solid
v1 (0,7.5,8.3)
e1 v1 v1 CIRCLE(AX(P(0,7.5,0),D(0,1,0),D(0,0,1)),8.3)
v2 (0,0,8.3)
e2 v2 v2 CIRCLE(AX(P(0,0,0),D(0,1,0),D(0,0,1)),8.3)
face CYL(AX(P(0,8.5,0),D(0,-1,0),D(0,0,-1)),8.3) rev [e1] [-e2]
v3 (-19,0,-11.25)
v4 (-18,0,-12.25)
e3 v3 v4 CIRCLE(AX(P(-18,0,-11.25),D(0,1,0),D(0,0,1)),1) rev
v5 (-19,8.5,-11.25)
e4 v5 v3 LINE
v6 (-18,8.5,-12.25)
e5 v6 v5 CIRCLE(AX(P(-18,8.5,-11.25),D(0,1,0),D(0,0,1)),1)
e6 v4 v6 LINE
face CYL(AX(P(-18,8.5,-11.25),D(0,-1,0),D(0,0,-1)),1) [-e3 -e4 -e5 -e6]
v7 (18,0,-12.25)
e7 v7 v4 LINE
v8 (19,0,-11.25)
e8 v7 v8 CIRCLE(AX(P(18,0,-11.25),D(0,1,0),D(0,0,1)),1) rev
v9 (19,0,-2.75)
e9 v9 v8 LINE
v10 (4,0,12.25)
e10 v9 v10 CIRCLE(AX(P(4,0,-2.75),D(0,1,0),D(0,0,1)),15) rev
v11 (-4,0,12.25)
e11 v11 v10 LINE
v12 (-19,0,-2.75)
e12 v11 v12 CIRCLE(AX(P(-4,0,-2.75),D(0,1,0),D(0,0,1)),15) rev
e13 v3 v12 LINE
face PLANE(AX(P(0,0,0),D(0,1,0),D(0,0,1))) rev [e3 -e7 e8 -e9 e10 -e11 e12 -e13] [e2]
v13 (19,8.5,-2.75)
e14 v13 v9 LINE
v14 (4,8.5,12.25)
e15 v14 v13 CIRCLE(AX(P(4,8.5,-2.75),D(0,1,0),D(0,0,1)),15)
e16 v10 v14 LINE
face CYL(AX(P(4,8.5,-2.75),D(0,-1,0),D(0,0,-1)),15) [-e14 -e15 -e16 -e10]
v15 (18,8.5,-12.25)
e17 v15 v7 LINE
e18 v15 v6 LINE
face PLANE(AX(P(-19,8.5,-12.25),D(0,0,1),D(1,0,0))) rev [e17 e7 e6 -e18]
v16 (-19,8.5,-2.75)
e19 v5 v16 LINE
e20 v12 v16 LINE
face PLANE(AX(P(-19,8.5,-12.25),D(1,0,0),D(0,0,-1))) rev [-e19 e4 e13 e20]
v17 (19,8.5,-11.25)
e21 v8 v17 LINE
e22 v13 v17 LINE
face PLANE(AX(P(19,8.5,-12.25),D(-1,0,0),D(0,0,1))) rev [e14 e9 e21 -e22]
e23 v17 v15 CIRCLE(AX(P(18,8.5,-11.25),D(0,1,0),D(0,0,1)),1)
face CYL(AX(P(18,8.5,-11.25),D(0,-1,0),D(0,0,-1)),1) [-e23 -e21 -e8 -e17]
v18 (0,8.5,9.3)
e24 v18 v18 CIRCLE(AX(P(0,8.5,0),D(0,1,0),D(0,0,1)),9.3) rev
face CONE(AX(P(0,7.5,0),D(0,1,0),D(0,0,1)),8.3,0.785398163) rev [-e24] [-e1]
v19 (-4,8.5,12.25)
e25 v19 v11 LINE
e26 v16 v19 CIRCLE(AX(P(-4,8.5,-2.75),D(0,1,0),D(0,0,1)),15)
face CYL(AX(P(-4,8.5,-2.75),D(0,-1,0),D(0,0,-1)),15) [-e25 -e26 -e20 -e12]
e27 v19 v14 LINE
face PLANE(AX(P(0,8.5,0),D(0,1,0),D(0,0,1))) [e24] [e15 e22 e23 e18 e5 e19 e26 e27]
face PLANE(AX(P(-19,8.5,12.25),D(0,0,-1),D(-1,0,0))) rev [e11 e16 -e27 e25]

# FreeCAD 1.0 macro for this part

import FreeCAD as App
import Part
import Sketcher
from FreeCAD import Vector
Q = App.Units.Quantity


def edges_at(feature, points):
    """Names of the edges that pass closest to the given points."""
    edges = feature.Shape.Edges
    near = lambda p: min(range(len(edges)), key=lambda i: edges[i].distToShape(Part.Vertex(*p))[0])
    return sorted({f"Edge{near(p) + 1}" for p in points})


def add_polygon(sketch, points):
    """Adds a closed chain of lines whose ends are joined by coincident constraints."""
    first, n = sketch.GeometryCount, len(points)
    for a, b in zip(points, points[1:] + points[:1]):
        sketch.addGeometry(Part.LineSegment(App.Vector(*a, 0), App.Vector(*b, 0)), False)
    for i in range(n):
        sketch.addConstraint(Sketcher.Constraint("Coincident", first + i, 2, first + (i + 1) % n, 1))

doc = App.newDocument("Part")
body = doc.addObject("PartDesign::Body", "Body")

sketch1 = body.newObject("Sketcher::SketchObject", "Sketch")
sketch1.AttachmentSupport = (doc.getObject("XZ_Plane"), [""])
sketch1.MapMode = "FlatFace"
add_polygon(sketch1, [(-19, -12), (-19, 12), (19, 12), (19, -12)])
sketch1.addGeometry(Part.Circle(Vector(0, 0, 0), Vector(0, 0, 1), 8), False)
sketch1.addConstraint([
    Sketcher.Constraint("Vertical", 0),
    Sketcher.Constraint("Horizontal", 1),
    Sketcher.Constraint("Vertical", 2),
    Sketcher.Constraint("Horizontal", 3),
    Sketcher.Constraint("Coincident", 4, 3, -1, 1),
    Sketcher.Constraint("Symmetric", 0, 2, 2, 2, -1, 1),
    Sketcher.Constraint("Diameter", 4, Q("16.6 mm")),
    Sketcher.Constraint("DistanceX", 1, 1, 1, 2, Q("38 mm")),
    Sketcher.Constraint("DistanceY", 0, 1, 0, 2, Q("24.5 mm")),
])
pad1 = body.newObject("PartDesign::Pad", "Pad")
pad1.Profile = sketch1
pad1.Length = 8.5
pad1.Reversed = True
doc.recompute()

fillet = body.newObject("PartDesign::Fillet", "Fillet")
fillet.Base = (pad1, edges_at(pad1, [(19, 4.25, 12.25), (-19, 4.25, 12.25)]))
fillet.Radius = 15
doc.recompute()

fillet2 = body.newObject("PartDesign::Fillet", "Fillet001")
fillet2.Base = (fillet, edges_at(fillet, [(-19, 4.25, -12.25), (19, 4.25, -12.25)]))
fillet2.Radius = 1
doc.recompute()

chamfer = body.newObject("PartDesign::Chamfer", "Chamfer")
chamfer.Base = (fillet2, edges_at(fillet2, [(0, 8.5, -8.3)]))
chamfer.Size = 1

doc.recompute()
